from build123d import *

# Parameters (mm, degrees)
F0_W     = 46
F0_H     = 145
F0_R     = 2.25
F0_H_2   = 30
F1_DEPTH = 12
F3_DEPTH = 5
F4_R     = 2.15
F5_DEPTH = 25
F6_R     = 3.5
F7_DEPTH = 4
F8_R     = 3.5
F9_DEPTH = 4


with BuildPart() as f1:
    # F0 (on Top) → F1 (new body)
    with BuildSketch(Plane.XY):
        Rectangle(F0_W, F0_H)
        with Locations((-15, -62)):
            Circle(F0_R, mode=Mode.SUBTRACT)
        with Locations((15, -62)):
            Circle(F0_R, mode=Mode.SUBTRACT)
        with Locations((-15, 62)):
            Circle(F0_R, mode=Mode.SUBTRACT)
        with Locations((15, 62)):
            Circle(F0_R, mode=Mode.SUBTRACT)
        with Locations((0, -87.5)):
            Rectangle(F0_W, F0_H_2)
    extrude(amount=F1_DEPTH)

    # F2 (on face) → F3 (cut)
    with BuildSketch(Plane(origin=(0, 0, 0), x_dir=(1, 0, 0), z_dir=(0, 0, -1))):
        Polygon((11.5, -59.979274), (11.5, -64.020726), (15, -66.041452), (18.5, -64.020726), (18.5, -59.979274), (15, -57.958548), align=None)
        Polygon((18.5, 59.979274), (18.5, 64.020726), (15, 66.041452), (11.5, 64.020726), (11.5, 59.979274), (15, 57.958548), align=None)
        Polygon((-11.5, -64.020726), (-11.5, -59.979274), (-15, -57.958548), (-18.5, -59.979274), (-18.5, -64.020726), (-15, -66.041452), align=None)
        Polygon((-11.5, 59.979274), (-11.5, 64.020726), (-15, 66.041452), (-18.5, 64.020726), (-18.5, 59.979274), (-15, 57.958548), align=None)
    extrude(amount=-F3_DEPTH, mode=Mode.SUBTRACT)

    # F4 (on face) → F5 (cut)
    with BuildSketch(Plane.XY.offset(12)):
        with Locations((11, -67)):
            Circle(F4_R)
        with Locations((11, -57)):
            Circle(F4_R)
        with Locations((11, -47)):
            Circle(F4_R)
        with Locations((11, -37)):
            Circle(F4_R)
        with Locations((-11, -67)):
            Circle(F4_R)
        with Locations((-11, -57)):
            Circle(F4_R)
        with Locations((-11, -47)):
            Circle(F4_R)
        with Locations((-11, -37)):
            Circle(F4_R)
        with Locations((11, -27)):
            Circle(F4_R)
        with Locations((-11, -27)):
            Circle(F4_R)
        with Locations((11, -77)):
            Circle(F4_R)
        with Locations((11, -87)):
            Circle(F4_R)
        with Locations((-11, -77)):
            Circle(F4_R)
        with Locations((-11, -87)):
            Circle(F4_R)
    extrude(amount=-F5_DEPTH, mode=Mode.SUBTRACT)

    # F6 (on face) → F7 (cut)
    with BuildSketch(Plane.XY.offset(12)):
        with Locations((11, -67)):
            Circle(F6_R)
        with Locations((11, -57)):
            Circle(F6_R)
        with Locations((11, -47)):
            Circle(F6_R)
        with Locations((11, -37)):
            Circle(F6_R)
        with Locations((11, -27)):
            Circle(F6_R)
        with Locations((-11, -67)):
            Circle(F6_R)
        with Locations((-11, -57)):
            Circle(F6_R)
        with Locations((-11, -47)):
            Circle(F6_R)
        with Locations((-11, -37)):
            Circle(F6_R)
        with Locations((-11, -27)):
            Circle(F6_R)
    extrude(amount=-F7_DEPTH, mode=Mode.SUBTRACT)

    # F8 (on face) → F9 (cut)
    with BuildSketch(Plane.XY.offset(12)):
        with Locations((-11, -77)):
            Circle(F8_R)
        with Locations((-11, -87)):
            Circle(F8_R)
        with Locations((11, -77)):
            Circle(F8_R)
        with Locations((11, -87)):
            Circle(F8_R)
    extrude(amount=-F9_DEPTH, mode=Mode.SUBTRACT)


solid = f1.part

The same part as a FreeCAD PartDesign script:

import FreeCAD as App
import Part
import Sketcher
Q = App.Units.Quantity

doc = App.newDocument("Part")
body = doc.addObject("PartDesign::Body", "Body")

sketch1 = body.newObject("Sketcher::SketchObject", "Sketch")
sketch1.AttachmentSupport = (doc.getObject("XY_Plane"), [""])
sketch1.MapMode = "FlatFace"
sketch1.addGeometry([
    Part.LineSegment(App.Vector(-23, 72.5, 0), App.Vector(-23, -102.5, 0)),
    Part.LineSegment(App.Vector(-23, -102.5, 0), App.Vector(23, -102.5, 0)),
    Part.LineSegment(App.Vector(23, -102.5, 0), App.Vector(23, 72.5, 0)),
    Part.LineSegment(App.Vector(23, 72.5, 0), App.Vector(-23, 72.5, 0)),
    Part.Circle(App.Vector(-15, -62, 0), App.Vector(0, 0, 1), 2.2),
    Part.Circle(App.Vector(15, -62, 0), App.Vector(0, 0, 1), 2.2),
    Part.Circle(App.Vector(-15, 62, 0), App.Vector(0, 0, 1), 2.2),
    Part.Circle(App.Vector(15, 62, 0), App.Vector(0, 0, 1), 2.2),
], False)
sketch1.addConstraint([
    Sketcher.Constraint("Coincident", 0, 2, 1, 1),
    Sketcher.Constraint("Coincident", 1, 2, 2, 1),
    Sketcher.Constraint("Coincident", 2, 2, 3, 1),
    Sketcher.Constraint("Coincident", 3, 2, 0, 1),
    Sketcher.Constraint("Vertical", 0),
    Sketcher.Constraint("Horizontal", 1),
    Sketcher.Constraint("Vertical", 2),
    Sketcher.Constraint("Horizontal", 3),
    Sketcher.Constraint("Equal", 4, 5),
    Sketcher.Constraint("Equal", 5, 6),
    Sketcher.Constraint("Equal", 6, 7),
    Sketcher.Constraint("Symmetric", 5, 3, 6, 3, -1, 1),
    Sketcher.Constraint("Symmetric", 4, 3, 7, 3, -1, 1),
    Sketcher.Constraint("Symmetric", 4, 3, 5, 3, -2),
    Sketcher.Constraint("Diameter", 4, Q("4.5 mm")),
    Sketcher.Constraint("DistanceX", 1, 1, 1, 2, Q("46 mm")),
    Sketcher.Constraint("DistanceY", 0, 2, 0, 1, Q("175 mm")),
    Sketcher.Constraint("DistanceX", 4, 3, -1, 1, Q("15 mm")),
    Sketcher.Constraint("DistanceY", 4, 3, -1, 1, Q("62 mm")),
    Sketcher.Constraint("DistanceX", 0, 2, -1, 1, Q("23 mm")),
    Sketcher.Constraint("DistanceY", 0, 2, -1, 1, Q("102.5 mm")),
])
pad1 = body.newObject("PartDesign::Pad", "Pad")
pad1.Profile = sketch1
pad1.Length = 12

sketch2 = body.newObject("Sketcher::SketchObject", "Sketch001")
sketch2.AttachmentSupport = (doc.getObject("XY_Plane"), [""])
sketch2.MapMode = "FlatFace"
sketch2.addGeometry([
    Part.LineSegment(App.Vector(11.5, 60, 0), App.Vector(11.5, 64, 0)),
    Part.LineSegment(App.Vector(11.5, 64, 0), App.Vector(15, 66, 0)),
    Part.LineSegment(App.Vector(15, 66, 0), App.Vector(18.5, 64, 0)),
    Part.LineSegment(App.Vector(18.5, 64, 0), App.Vector(18.5, 60, 0)),
    Part.LineSegment(App.Vector(18.5, 60, 0), App.Vector(15, 58, 0)),
    Part.LineSegment(App.Vector(15, 58, 0), App.Vector(11.5, 60, 0)),
    Part.LineSegment(App.Vector(18.5, -60, 0), App.Vector(18.5, -64, 0)),
    Part.LineSegment(App.Vector(18.5, -64, 0), App.Vector(15, -66, 0)),
    Part.LineSegment(App.Vector(15, -66, 0), App.Vector(11.5, -64, 0)),
    Part.LineSegment(App.Vector(11.5, -64, 0), App.Vector(11.5, -60, 0)),
    Part.LineSegment(App.Vector(11.5, -60, 0), App.Vector(15, -58, 0)),
    Part.LineSegment(App.Vector(15, -58, 0), App.Vector(18.5, -60, 0)),
    Part.LineSegment(App.Vector(-11.5, 64, 0), App.Vector(-11.5, 60, 0)),
    Part.LineSegment(App.Vector(-11.5, 60, 0), App.Vector(-15, 58, 0)),
    Part.LineSegment(App.Vector(-15, 58, 0), App.Vector(-18.5, 60, 0)),
    Part.LineSegment(App.Vector(-18.5, 60, 0), App.Vector(-18.5, 64, 0)),
    Part.LineSegment(App.Vector(-18.5, 64, 0), App.Vector(-15, 66, 0)),
    Part.LineSegment(App.Vector(-15, 66, 0), App.Vector(-11.5, 64, 0)),
    Part.LineSegment(App.Vector(-11.5, -60, 0), App.Vector(-11.5, -64, 0)),
    Part.LineSegment(App.Vector(-11.5, -64, 0), App.Vector(-15, -66, 0)),
    Part.LineSegment(App.Vector(-15, -66, 0), App.Vector(-18.5, -64, 0)),
    Part.LineSegment(App.Vector(-18.5, -64, 0), App.Vector(-18.5, -60, 0)),
    Part.LineSegment(App.Vector(-18.5, -60, 0), App.Vector(-15, -58, 0)),
    Part.LineSegment(App.Vector(-15, -58, 0), App.Vector(-11.5, -60, 0)),
], False)
sketch2.addConstraint([
    Sketcher.Constraint("Coincident", 0, 2, 1, 1),
    Sketcher.Constraint("Coincident", 1, 2, 2, 1),
    Sketcher.Constraint("Coincident", 2, 2, 3, 1),
    Sketcher.Constraint("Coincident", 3, 2, 4, 1),
    Sketcher.Constraint("Coincident", 4, 2, 5, 1),
    Sketcher.Constraint("Coincident", 5, 2, 0, 1),
    Sketcher.Constraint("Coincident", 6, 2, 7, 1),
    Sketcher.Constraint("Coincident", 7, 2, 8, 1),
    Sketcher.Constraint("Coincident", 8, 2, 9, 1),
    Sketcher.Constraint("Coincident", 9, 2, 10, 1),
    Sketcher.Constraint("Coincident", 10, 2, 11, 1),
    Sketcher.Constraint("Coincident", 11, 2, 6, 1),
    Sketcher.Constraint("Coincident", 12, 2, 13, 1),
    Sketcher.Constraint("Coincident", 13, 2, 14, 1),
    Sketcher.Constraint("Coincident", 14, 2, 15, 1),
    Sketcher.Constraint("Coincident", 15, 2, 16, 1),
    Sketcher.Constraint("Coincident", 16, 2, 17, 1),
    Sketcher.Constraint("Coincident", 17, 2, 12, 1),
    Sketcher.Constraint("Coincident", 18, 2, 19, 1),
    Sketcher.Constraint("Coincident", 19, 2, 20, 1),
    Sketcher.Constraint("Coincident", 20, 2, 21, 1),
    Sketcher.Constraint("Coincident", 21, 2, 22, 1),
    Sketcher.Constraint("Coincident", 22, 2, 23, 1),
    Sketcher.Constraint("Coincident", 23, 2, 18, 1),
    Sketcher.Constraint("Vertical", 0),
    Sketcher.Constraint("Vertical", 3),
    Sketcher.Constraint("Vertical", 6),
    Sketcher.Constraint("Vertical", 9),
    Sketcher.Constraint("Vertical", 12),
    Sketcher.Constraint("Vertical", 15),
    Sketcher.Constraint("Vertical", 18),
    Sketcher.Constraint("Vertical", 21),
    Sketcher.Constraint("Symmetric", 9, 2, 12, 2, -1, 1),
    Sketcher.Constraint("Symmetric", 10, 2, 13, 2, -1, 1),
    Sketcher.Constraint("Symmetric", 11, 2, 14, 2, -1, 1),
    Sketcher.Constraint("Symmetric", 7, 2, 16, 2, -1, 1),
    Sketcher.Constraint("Symmetric", 0, 2, 18, 2, -1, 1),
    Sketcher.Constraint("Symmetric", 1, 2, 19, 2, -1, 1),
    Sketcher.Constraint("Symmetric", 2, 2, 20, 2, -1, 1),
    Sketcher.Constraint("Symmetric", 4, 2, 22, 2, -1, 1),
    Sketcher.Constraint("Symmetric", 5, 2, 12, 2, -2),
    Sketcher.Constraint("Symmetric", 4, 2, 13, 2, -2),
    Sketcher.Constraint("Symmetric", 3, 2, 14, 2, -2),
    Sketcher.Constraint("Symmetric", 1, 2, 16, 2, -2),
    Sketcher.Constraint("Parallel", 1, 4),
    Sketcher.Constraint("Parallel", 2, 5),
    Sketcher.Constraint("Parallel", 4, 7),
    Sketcher.Constraint("Parallel", 5, 8),
    Sketcher.Constraint("Parallel", 7, 10),
    Sketcher.Constraint("Parallel", 13, 16),
    Sketcher.Constraint("Parallel", 14, 17),
    Sketcher.Constraint("Parallel", 19, 22),
    Sketcher.Constraint("Parallel", 20, 23),
    Sketcher.Constraint("Horizontal", 0, 2, 2, 2),
    Sketcher.Constraint("Horizontal", 3, 2, 5, 2),
    Sketcher.Constraint("Angle", 1, Q("30.000001 deg")),
    Sketcher.Constraint("DistanceX", -1, 1, 1, 2, Q("15 mm")),
    Sketcher.Constraint("DistanceX", 0, 2, 2, 2, Q("7 mm")),
    Sketcher.Constraint("DistanceY", 6, 2, 3, 2, Q("124 mm")),
    Sketcher.Constraint("DistanceY", 0, 1, 0, 2, Q("4.041452 mm")),
])
pocket1 = body.newObject("PartDesign::Pocket", "Pocket")
pocket1.Profile = sketch2
pocket1.Length = 5
pocket1.Reversed = True

sketch3 = body.newObject("Sketcher::SketchObject", "Sketch002")
sketch3.AttachmentSupport = (doc.getObject("XY_Plane"), [""])
sketch3.MapMode = "FlatFace"
sketch3.AttachmentOffset = App.Placement(App.Vector(0, 0, 12), App.Rotation())
sketch3.addGeometry([
    Part.Circle(App.Vector(11, -67, 0), App.Vector(0, 0, 1), 2.1),
    Part.Circle(App.Vector(11, -57, 0), App.Vector(0, 0, 1), 2.1),
    Part.Circle(App.Vector(11, -47, 0), App.Vector(0, 0, 1), 2.1),
    Part.Circle(App.Vector(11, -37, 0), App.Vector(0, 0, 1), 2.1),
    Part.Circle(App.Vector(-11, -67, 0), App.Vector(0, 0, 1), 2.1),
    Part.Circle(App.Vector(-11, -57, 0), App.Vector(0, 0, 1), 2.1),
    Part.Circle(App.Vector(-11, -47, 0), App.Vector(0, 0, 1), 2.1),
    Part.Circle(App.Vector(-11, -37, 0), App.Vector(0, 0, 1), 2.1),
    Part.Circle(App.Vector(11, -27, 0), App.Vector(0, 0, 1), 2.1),
    Part.Circle(App.Vector(-11, -27, 0), App.Vector(0, 0, 1), 2.1),
    Part.Circle(App.Vector(11, -77, 0), App.Vector(0, 0, 1), 2.1),
    Part.Circle(App.Vector(11, -87, 0), App.Vector(0, 0, 1), 2.1),
    Part.Circle(App.Vector(-11, -77, 0), App.Vector(0, 0, 1), 2.1),
    Part.Circle(App.Vector(-11, -87, 0), App.Vector(0, 0, 1), 2.1),
], False)
sketch3.addConstraint([
    Sketcher.Constraint("Equal", 0, 1),
    Sketcher.Constraint("Equal", 1, 2),
    Sketcher.Constraint("Equal", 2, 3),
    Sketcher.Constraint("Equal", 3, 4),
    Sketcher.Constraint("Equal", 4, 5),
    Sketcher.Constraint("Equal", 5, 6),
    Sketcher.Constraint("Equal", 6, 7),
    Sketcher.Constraint("Equal", 7, 8),
    Sketcher.Constraint("Equal", 8, 9),
    Sketcher.Constraint("Equal", 9, 10),
    Sketcher.Constraint("Equal", 10, 11),
    Sketcher.Constraint("Equal", 11, 12),
    Sketcher.Constraint("Equal", 12, 13),
    Sketcher.Constraint("Symmetric", 0, 3, 4, 3, -2),
    Sketcher.Constraint("Symmetric", 1, 3, 5, 3, -2),
    Sketcher.Constraint("Symmetric", 2, 3, 6, 3, -2),
    Sketcher.Constraint("Symmetric", 3, 3, 7, 3, -2),
    Sketcher.Constraint("Symmetric", 8, 3, 9, 3, -2),
    Sketcher.Constraint("Symmetric", 10, 3, 12, 3, -2),
    Sketcher.Constraint("Symmetric", 11, 3, 13, 3, -2),
    Sketcher.Constraint("Vertical", 0, 3, 1, 3),
    Sketcher.Constraint("Vertical", 1, 3, 2, 3),
    Sketcher.Constraint("Vertical", 2, 3, 3, 3),
    Sketcher.Constraint("Vertical", 3, 3, 8, 3),
    Sketcher.Constraint("Vertical", 8, 3, 10, 3),
    Sketcher.Constraint("Vertical", 10, 3, 11, 3),
    Sketcher.Constraint("Diameter", 0, Q("4.3 mm")),
    Sketcher.Constraint("DistanceX", -1, 1, 0, 3, Q("11 mm")),
    Sketcher.Constraint("DistanceY", 0, 3, -1, 1, Q("67 mm")),
    Sketcher.Constraint("DistanceY", 1, 3, -1, 1, Q("57 mm")),
    Sketcher.Constraint("DistanceY", 2, 3, -1, 1, Q("47 mm")),
    Sketcher.Constraint("DistanceY", 3, 3, -1, 1, Q("37 mm")),
    Sketcher.Constraint("DistanceY", 8, 3, -1, 1, Q("27 mm")),
    Sketcher.Constraint("DistanceY", 10, 3, -1, 1, Q("77 mm")),
    Sketcher.Constraint("DistanceY", 11, 3, -1, 1, Q("87 mm")),
])
pocket2 = body.newObject("PartDesign::Pocket", "Pocket001")
pocket2.Profile = sketch3
pocket2.Length = 25

sketch4 = body.newObject("Sketcher::SketchObject", "Sketch003")
sketch4.AttachmentSupport = (doc.getObject("XY_Plane"), [""])
sketch4.MapMode = "FlatFace"
sketch4.AttachmentOffset = App.Placement(App.Vector(0, 0, 12), App.Rotation())
sketch4.addGeometry([
    Part.Circle(App.Vector(11, -67, 0), App.Vector(0, 0, 1), 3.5),
    Part.Circle(App.Vector(11, -57, 0), App.Vector(0, 0, 1), 3.5),
    Part.Circle(App.Vector(11, -47, 0), App.Vector(0, 0, 1), 3.5),
    Part.Circle(App.Vector(11, -37, 0), App.Vector(0, 0, 1), 3.5),
    Part.Circle(App.Vector(11, -27, 0), App.Vector(0, 0, 1), 3.5),
    Part.Circle(App.Vector(-11, -67, 0), App.Vector(0, 0, 1), 3.5),
    Part.Circle(App.Vector(-11, -57, 0), App.Vector(0, 0, 1), 3.5),
    Part.Circle(App.Vector(-11, -47, 0), App.Vector(0, 0, 1), 3.5),
    Part.Circle(App.Vector(-11, -37, 0), App.Vector(0, 0, 1), 3.5),
    Part.Circle(App.Vector(-11, -27, 0), App.Vector(0, 0, 1), 3.5),
], False)
sketch4.addConstraint([
    Sketcher.Constraint("Equal", 0, 1),
    Sketcher.Constraint("Equal", 1, 2),
    Sketcher.Constraint("Equal", 2, 3),
    Sketcher.Constraint("Equal", 3, 4),
    Sketcher.Constraint("Equal", 4, 5),
    Sketcher.Constraint("Equal", 5, 6),
    Sketcher.Constraint("Equal", 6, 7),
    Sketcher.Constraint("Equal", 7, 8),
    Sketcher.Constraint("Equal", 8, 9),
    Sketcher.Constraint("Symmetric", 0, 3, 5, 3, -2),
    Sketcher.Constraint("Symmetric", 1, 3, 6, 3, -2),
    Sketcher.Constraint("Symmetric", 2, 3, 7, 3, -2),
    Sketcher.Constraint("Symmetric", 3, 3, 8, 3, -2),
    Sketcher.Constraint("Symmetric", 4, 3, 9, 3, -2),
    Sketcher.Constraint("Vertical", 0, 3, 1, 3),
    Sketcher.Constraint("Vertical", 1, 3, 2, 3),
    Sketcher.Constraint("Vertical", 2, 3, 3, 3),
    Sketcher.Constraint("Vertical", 3, 3, 4, 3),
    Sketcher.Constraint("Diameter", 0, Q("7 mm")),
    Sketcher.Constraint("DistanceX", -1, 1, 0, 3, Q("11 mm")),
    Sketcher.Constraint("DistanceY", 0, 3, -1, 1, Q("67 mm")),
    Sketcher.Constraint("DistanceY", 1, 3, -1, 1, Q("57 mm")),
    Sketcher.Constraint("DistanceY", 2, 3, -1, 1, Q("47 mm")),
    Sketcher.Constraint("DistanceY", 3, 3, -1, 1, Q("37 mm")),
    Sketcher.Constraint("DistanceY", 4, 3, -1, 1, Q("27 mm")),
])
pocket3 = body.newObject("PartDesign::Pocket", "Pocket002")
pocket3.Profile = sketch4
pocket3.Length = 4

sketch5 = body.newObject("Sketcher::SketchObject", "Sketch004")
sketch5.AttachmentSupport = (doc.getObject("XY_Plane"), [""])
sketch5.MapMode = "FlatFace"
sketch5.AttachmentOffset = App.Placement(App.Vector(0, 0, 12), App.Rotation())
sketch5.addGeometry([
    Part.Circle(App.Vector(-11, -77, 0), App.Vector(0, 0, 1), 3.5),
    Part.Circle(App.Vector(-11, -87, 0), App.Vector(0, 0, 1), 3.5),
    Part.Circle(App.Vector(11, -77, 0), App.Vector(0, 0, 1), 3.5),
    Part.Circle(App.Vector(11, -87, 0), App.Vector(0, 0, 1), 3.5),
], False)
sketch5.addConstraint([
    Sketcher.Constraint("Equal", 0, 1),
    Sketcher.Constraint("Equal", 1, 2),
    Sketcher.Constraint("Equal", 2, 3),
    Sketcher.Constraint("Symmetric", 0, 3, 2, 3, -2),
    Sketcher.Constraint("Symmetric", 1, 3, 3, 3, -2),
    Sketcher.Constraint("Vertical", 0, 3, 1, 3),
    Sketcher.Constraint("Diameter", 0, Q("7 mm")),
    Sketcher.Constraint("DistanceX", 0, 3, -1, 1, Q("11 mm")),
    Sketcher.Constraint("DistanceY", 0, 3, -1, 1, Q("77 mm")),
    Sketcher.Constraint("DistanceY", 1, 3, -1, 1, Q("87 mm")),
])
pocket4 = body.newObject("PartDesign::Pocket", "Pocket003")
pocket4.Profile = sketch5
pocket4.Length = 4

doc.recompute()
